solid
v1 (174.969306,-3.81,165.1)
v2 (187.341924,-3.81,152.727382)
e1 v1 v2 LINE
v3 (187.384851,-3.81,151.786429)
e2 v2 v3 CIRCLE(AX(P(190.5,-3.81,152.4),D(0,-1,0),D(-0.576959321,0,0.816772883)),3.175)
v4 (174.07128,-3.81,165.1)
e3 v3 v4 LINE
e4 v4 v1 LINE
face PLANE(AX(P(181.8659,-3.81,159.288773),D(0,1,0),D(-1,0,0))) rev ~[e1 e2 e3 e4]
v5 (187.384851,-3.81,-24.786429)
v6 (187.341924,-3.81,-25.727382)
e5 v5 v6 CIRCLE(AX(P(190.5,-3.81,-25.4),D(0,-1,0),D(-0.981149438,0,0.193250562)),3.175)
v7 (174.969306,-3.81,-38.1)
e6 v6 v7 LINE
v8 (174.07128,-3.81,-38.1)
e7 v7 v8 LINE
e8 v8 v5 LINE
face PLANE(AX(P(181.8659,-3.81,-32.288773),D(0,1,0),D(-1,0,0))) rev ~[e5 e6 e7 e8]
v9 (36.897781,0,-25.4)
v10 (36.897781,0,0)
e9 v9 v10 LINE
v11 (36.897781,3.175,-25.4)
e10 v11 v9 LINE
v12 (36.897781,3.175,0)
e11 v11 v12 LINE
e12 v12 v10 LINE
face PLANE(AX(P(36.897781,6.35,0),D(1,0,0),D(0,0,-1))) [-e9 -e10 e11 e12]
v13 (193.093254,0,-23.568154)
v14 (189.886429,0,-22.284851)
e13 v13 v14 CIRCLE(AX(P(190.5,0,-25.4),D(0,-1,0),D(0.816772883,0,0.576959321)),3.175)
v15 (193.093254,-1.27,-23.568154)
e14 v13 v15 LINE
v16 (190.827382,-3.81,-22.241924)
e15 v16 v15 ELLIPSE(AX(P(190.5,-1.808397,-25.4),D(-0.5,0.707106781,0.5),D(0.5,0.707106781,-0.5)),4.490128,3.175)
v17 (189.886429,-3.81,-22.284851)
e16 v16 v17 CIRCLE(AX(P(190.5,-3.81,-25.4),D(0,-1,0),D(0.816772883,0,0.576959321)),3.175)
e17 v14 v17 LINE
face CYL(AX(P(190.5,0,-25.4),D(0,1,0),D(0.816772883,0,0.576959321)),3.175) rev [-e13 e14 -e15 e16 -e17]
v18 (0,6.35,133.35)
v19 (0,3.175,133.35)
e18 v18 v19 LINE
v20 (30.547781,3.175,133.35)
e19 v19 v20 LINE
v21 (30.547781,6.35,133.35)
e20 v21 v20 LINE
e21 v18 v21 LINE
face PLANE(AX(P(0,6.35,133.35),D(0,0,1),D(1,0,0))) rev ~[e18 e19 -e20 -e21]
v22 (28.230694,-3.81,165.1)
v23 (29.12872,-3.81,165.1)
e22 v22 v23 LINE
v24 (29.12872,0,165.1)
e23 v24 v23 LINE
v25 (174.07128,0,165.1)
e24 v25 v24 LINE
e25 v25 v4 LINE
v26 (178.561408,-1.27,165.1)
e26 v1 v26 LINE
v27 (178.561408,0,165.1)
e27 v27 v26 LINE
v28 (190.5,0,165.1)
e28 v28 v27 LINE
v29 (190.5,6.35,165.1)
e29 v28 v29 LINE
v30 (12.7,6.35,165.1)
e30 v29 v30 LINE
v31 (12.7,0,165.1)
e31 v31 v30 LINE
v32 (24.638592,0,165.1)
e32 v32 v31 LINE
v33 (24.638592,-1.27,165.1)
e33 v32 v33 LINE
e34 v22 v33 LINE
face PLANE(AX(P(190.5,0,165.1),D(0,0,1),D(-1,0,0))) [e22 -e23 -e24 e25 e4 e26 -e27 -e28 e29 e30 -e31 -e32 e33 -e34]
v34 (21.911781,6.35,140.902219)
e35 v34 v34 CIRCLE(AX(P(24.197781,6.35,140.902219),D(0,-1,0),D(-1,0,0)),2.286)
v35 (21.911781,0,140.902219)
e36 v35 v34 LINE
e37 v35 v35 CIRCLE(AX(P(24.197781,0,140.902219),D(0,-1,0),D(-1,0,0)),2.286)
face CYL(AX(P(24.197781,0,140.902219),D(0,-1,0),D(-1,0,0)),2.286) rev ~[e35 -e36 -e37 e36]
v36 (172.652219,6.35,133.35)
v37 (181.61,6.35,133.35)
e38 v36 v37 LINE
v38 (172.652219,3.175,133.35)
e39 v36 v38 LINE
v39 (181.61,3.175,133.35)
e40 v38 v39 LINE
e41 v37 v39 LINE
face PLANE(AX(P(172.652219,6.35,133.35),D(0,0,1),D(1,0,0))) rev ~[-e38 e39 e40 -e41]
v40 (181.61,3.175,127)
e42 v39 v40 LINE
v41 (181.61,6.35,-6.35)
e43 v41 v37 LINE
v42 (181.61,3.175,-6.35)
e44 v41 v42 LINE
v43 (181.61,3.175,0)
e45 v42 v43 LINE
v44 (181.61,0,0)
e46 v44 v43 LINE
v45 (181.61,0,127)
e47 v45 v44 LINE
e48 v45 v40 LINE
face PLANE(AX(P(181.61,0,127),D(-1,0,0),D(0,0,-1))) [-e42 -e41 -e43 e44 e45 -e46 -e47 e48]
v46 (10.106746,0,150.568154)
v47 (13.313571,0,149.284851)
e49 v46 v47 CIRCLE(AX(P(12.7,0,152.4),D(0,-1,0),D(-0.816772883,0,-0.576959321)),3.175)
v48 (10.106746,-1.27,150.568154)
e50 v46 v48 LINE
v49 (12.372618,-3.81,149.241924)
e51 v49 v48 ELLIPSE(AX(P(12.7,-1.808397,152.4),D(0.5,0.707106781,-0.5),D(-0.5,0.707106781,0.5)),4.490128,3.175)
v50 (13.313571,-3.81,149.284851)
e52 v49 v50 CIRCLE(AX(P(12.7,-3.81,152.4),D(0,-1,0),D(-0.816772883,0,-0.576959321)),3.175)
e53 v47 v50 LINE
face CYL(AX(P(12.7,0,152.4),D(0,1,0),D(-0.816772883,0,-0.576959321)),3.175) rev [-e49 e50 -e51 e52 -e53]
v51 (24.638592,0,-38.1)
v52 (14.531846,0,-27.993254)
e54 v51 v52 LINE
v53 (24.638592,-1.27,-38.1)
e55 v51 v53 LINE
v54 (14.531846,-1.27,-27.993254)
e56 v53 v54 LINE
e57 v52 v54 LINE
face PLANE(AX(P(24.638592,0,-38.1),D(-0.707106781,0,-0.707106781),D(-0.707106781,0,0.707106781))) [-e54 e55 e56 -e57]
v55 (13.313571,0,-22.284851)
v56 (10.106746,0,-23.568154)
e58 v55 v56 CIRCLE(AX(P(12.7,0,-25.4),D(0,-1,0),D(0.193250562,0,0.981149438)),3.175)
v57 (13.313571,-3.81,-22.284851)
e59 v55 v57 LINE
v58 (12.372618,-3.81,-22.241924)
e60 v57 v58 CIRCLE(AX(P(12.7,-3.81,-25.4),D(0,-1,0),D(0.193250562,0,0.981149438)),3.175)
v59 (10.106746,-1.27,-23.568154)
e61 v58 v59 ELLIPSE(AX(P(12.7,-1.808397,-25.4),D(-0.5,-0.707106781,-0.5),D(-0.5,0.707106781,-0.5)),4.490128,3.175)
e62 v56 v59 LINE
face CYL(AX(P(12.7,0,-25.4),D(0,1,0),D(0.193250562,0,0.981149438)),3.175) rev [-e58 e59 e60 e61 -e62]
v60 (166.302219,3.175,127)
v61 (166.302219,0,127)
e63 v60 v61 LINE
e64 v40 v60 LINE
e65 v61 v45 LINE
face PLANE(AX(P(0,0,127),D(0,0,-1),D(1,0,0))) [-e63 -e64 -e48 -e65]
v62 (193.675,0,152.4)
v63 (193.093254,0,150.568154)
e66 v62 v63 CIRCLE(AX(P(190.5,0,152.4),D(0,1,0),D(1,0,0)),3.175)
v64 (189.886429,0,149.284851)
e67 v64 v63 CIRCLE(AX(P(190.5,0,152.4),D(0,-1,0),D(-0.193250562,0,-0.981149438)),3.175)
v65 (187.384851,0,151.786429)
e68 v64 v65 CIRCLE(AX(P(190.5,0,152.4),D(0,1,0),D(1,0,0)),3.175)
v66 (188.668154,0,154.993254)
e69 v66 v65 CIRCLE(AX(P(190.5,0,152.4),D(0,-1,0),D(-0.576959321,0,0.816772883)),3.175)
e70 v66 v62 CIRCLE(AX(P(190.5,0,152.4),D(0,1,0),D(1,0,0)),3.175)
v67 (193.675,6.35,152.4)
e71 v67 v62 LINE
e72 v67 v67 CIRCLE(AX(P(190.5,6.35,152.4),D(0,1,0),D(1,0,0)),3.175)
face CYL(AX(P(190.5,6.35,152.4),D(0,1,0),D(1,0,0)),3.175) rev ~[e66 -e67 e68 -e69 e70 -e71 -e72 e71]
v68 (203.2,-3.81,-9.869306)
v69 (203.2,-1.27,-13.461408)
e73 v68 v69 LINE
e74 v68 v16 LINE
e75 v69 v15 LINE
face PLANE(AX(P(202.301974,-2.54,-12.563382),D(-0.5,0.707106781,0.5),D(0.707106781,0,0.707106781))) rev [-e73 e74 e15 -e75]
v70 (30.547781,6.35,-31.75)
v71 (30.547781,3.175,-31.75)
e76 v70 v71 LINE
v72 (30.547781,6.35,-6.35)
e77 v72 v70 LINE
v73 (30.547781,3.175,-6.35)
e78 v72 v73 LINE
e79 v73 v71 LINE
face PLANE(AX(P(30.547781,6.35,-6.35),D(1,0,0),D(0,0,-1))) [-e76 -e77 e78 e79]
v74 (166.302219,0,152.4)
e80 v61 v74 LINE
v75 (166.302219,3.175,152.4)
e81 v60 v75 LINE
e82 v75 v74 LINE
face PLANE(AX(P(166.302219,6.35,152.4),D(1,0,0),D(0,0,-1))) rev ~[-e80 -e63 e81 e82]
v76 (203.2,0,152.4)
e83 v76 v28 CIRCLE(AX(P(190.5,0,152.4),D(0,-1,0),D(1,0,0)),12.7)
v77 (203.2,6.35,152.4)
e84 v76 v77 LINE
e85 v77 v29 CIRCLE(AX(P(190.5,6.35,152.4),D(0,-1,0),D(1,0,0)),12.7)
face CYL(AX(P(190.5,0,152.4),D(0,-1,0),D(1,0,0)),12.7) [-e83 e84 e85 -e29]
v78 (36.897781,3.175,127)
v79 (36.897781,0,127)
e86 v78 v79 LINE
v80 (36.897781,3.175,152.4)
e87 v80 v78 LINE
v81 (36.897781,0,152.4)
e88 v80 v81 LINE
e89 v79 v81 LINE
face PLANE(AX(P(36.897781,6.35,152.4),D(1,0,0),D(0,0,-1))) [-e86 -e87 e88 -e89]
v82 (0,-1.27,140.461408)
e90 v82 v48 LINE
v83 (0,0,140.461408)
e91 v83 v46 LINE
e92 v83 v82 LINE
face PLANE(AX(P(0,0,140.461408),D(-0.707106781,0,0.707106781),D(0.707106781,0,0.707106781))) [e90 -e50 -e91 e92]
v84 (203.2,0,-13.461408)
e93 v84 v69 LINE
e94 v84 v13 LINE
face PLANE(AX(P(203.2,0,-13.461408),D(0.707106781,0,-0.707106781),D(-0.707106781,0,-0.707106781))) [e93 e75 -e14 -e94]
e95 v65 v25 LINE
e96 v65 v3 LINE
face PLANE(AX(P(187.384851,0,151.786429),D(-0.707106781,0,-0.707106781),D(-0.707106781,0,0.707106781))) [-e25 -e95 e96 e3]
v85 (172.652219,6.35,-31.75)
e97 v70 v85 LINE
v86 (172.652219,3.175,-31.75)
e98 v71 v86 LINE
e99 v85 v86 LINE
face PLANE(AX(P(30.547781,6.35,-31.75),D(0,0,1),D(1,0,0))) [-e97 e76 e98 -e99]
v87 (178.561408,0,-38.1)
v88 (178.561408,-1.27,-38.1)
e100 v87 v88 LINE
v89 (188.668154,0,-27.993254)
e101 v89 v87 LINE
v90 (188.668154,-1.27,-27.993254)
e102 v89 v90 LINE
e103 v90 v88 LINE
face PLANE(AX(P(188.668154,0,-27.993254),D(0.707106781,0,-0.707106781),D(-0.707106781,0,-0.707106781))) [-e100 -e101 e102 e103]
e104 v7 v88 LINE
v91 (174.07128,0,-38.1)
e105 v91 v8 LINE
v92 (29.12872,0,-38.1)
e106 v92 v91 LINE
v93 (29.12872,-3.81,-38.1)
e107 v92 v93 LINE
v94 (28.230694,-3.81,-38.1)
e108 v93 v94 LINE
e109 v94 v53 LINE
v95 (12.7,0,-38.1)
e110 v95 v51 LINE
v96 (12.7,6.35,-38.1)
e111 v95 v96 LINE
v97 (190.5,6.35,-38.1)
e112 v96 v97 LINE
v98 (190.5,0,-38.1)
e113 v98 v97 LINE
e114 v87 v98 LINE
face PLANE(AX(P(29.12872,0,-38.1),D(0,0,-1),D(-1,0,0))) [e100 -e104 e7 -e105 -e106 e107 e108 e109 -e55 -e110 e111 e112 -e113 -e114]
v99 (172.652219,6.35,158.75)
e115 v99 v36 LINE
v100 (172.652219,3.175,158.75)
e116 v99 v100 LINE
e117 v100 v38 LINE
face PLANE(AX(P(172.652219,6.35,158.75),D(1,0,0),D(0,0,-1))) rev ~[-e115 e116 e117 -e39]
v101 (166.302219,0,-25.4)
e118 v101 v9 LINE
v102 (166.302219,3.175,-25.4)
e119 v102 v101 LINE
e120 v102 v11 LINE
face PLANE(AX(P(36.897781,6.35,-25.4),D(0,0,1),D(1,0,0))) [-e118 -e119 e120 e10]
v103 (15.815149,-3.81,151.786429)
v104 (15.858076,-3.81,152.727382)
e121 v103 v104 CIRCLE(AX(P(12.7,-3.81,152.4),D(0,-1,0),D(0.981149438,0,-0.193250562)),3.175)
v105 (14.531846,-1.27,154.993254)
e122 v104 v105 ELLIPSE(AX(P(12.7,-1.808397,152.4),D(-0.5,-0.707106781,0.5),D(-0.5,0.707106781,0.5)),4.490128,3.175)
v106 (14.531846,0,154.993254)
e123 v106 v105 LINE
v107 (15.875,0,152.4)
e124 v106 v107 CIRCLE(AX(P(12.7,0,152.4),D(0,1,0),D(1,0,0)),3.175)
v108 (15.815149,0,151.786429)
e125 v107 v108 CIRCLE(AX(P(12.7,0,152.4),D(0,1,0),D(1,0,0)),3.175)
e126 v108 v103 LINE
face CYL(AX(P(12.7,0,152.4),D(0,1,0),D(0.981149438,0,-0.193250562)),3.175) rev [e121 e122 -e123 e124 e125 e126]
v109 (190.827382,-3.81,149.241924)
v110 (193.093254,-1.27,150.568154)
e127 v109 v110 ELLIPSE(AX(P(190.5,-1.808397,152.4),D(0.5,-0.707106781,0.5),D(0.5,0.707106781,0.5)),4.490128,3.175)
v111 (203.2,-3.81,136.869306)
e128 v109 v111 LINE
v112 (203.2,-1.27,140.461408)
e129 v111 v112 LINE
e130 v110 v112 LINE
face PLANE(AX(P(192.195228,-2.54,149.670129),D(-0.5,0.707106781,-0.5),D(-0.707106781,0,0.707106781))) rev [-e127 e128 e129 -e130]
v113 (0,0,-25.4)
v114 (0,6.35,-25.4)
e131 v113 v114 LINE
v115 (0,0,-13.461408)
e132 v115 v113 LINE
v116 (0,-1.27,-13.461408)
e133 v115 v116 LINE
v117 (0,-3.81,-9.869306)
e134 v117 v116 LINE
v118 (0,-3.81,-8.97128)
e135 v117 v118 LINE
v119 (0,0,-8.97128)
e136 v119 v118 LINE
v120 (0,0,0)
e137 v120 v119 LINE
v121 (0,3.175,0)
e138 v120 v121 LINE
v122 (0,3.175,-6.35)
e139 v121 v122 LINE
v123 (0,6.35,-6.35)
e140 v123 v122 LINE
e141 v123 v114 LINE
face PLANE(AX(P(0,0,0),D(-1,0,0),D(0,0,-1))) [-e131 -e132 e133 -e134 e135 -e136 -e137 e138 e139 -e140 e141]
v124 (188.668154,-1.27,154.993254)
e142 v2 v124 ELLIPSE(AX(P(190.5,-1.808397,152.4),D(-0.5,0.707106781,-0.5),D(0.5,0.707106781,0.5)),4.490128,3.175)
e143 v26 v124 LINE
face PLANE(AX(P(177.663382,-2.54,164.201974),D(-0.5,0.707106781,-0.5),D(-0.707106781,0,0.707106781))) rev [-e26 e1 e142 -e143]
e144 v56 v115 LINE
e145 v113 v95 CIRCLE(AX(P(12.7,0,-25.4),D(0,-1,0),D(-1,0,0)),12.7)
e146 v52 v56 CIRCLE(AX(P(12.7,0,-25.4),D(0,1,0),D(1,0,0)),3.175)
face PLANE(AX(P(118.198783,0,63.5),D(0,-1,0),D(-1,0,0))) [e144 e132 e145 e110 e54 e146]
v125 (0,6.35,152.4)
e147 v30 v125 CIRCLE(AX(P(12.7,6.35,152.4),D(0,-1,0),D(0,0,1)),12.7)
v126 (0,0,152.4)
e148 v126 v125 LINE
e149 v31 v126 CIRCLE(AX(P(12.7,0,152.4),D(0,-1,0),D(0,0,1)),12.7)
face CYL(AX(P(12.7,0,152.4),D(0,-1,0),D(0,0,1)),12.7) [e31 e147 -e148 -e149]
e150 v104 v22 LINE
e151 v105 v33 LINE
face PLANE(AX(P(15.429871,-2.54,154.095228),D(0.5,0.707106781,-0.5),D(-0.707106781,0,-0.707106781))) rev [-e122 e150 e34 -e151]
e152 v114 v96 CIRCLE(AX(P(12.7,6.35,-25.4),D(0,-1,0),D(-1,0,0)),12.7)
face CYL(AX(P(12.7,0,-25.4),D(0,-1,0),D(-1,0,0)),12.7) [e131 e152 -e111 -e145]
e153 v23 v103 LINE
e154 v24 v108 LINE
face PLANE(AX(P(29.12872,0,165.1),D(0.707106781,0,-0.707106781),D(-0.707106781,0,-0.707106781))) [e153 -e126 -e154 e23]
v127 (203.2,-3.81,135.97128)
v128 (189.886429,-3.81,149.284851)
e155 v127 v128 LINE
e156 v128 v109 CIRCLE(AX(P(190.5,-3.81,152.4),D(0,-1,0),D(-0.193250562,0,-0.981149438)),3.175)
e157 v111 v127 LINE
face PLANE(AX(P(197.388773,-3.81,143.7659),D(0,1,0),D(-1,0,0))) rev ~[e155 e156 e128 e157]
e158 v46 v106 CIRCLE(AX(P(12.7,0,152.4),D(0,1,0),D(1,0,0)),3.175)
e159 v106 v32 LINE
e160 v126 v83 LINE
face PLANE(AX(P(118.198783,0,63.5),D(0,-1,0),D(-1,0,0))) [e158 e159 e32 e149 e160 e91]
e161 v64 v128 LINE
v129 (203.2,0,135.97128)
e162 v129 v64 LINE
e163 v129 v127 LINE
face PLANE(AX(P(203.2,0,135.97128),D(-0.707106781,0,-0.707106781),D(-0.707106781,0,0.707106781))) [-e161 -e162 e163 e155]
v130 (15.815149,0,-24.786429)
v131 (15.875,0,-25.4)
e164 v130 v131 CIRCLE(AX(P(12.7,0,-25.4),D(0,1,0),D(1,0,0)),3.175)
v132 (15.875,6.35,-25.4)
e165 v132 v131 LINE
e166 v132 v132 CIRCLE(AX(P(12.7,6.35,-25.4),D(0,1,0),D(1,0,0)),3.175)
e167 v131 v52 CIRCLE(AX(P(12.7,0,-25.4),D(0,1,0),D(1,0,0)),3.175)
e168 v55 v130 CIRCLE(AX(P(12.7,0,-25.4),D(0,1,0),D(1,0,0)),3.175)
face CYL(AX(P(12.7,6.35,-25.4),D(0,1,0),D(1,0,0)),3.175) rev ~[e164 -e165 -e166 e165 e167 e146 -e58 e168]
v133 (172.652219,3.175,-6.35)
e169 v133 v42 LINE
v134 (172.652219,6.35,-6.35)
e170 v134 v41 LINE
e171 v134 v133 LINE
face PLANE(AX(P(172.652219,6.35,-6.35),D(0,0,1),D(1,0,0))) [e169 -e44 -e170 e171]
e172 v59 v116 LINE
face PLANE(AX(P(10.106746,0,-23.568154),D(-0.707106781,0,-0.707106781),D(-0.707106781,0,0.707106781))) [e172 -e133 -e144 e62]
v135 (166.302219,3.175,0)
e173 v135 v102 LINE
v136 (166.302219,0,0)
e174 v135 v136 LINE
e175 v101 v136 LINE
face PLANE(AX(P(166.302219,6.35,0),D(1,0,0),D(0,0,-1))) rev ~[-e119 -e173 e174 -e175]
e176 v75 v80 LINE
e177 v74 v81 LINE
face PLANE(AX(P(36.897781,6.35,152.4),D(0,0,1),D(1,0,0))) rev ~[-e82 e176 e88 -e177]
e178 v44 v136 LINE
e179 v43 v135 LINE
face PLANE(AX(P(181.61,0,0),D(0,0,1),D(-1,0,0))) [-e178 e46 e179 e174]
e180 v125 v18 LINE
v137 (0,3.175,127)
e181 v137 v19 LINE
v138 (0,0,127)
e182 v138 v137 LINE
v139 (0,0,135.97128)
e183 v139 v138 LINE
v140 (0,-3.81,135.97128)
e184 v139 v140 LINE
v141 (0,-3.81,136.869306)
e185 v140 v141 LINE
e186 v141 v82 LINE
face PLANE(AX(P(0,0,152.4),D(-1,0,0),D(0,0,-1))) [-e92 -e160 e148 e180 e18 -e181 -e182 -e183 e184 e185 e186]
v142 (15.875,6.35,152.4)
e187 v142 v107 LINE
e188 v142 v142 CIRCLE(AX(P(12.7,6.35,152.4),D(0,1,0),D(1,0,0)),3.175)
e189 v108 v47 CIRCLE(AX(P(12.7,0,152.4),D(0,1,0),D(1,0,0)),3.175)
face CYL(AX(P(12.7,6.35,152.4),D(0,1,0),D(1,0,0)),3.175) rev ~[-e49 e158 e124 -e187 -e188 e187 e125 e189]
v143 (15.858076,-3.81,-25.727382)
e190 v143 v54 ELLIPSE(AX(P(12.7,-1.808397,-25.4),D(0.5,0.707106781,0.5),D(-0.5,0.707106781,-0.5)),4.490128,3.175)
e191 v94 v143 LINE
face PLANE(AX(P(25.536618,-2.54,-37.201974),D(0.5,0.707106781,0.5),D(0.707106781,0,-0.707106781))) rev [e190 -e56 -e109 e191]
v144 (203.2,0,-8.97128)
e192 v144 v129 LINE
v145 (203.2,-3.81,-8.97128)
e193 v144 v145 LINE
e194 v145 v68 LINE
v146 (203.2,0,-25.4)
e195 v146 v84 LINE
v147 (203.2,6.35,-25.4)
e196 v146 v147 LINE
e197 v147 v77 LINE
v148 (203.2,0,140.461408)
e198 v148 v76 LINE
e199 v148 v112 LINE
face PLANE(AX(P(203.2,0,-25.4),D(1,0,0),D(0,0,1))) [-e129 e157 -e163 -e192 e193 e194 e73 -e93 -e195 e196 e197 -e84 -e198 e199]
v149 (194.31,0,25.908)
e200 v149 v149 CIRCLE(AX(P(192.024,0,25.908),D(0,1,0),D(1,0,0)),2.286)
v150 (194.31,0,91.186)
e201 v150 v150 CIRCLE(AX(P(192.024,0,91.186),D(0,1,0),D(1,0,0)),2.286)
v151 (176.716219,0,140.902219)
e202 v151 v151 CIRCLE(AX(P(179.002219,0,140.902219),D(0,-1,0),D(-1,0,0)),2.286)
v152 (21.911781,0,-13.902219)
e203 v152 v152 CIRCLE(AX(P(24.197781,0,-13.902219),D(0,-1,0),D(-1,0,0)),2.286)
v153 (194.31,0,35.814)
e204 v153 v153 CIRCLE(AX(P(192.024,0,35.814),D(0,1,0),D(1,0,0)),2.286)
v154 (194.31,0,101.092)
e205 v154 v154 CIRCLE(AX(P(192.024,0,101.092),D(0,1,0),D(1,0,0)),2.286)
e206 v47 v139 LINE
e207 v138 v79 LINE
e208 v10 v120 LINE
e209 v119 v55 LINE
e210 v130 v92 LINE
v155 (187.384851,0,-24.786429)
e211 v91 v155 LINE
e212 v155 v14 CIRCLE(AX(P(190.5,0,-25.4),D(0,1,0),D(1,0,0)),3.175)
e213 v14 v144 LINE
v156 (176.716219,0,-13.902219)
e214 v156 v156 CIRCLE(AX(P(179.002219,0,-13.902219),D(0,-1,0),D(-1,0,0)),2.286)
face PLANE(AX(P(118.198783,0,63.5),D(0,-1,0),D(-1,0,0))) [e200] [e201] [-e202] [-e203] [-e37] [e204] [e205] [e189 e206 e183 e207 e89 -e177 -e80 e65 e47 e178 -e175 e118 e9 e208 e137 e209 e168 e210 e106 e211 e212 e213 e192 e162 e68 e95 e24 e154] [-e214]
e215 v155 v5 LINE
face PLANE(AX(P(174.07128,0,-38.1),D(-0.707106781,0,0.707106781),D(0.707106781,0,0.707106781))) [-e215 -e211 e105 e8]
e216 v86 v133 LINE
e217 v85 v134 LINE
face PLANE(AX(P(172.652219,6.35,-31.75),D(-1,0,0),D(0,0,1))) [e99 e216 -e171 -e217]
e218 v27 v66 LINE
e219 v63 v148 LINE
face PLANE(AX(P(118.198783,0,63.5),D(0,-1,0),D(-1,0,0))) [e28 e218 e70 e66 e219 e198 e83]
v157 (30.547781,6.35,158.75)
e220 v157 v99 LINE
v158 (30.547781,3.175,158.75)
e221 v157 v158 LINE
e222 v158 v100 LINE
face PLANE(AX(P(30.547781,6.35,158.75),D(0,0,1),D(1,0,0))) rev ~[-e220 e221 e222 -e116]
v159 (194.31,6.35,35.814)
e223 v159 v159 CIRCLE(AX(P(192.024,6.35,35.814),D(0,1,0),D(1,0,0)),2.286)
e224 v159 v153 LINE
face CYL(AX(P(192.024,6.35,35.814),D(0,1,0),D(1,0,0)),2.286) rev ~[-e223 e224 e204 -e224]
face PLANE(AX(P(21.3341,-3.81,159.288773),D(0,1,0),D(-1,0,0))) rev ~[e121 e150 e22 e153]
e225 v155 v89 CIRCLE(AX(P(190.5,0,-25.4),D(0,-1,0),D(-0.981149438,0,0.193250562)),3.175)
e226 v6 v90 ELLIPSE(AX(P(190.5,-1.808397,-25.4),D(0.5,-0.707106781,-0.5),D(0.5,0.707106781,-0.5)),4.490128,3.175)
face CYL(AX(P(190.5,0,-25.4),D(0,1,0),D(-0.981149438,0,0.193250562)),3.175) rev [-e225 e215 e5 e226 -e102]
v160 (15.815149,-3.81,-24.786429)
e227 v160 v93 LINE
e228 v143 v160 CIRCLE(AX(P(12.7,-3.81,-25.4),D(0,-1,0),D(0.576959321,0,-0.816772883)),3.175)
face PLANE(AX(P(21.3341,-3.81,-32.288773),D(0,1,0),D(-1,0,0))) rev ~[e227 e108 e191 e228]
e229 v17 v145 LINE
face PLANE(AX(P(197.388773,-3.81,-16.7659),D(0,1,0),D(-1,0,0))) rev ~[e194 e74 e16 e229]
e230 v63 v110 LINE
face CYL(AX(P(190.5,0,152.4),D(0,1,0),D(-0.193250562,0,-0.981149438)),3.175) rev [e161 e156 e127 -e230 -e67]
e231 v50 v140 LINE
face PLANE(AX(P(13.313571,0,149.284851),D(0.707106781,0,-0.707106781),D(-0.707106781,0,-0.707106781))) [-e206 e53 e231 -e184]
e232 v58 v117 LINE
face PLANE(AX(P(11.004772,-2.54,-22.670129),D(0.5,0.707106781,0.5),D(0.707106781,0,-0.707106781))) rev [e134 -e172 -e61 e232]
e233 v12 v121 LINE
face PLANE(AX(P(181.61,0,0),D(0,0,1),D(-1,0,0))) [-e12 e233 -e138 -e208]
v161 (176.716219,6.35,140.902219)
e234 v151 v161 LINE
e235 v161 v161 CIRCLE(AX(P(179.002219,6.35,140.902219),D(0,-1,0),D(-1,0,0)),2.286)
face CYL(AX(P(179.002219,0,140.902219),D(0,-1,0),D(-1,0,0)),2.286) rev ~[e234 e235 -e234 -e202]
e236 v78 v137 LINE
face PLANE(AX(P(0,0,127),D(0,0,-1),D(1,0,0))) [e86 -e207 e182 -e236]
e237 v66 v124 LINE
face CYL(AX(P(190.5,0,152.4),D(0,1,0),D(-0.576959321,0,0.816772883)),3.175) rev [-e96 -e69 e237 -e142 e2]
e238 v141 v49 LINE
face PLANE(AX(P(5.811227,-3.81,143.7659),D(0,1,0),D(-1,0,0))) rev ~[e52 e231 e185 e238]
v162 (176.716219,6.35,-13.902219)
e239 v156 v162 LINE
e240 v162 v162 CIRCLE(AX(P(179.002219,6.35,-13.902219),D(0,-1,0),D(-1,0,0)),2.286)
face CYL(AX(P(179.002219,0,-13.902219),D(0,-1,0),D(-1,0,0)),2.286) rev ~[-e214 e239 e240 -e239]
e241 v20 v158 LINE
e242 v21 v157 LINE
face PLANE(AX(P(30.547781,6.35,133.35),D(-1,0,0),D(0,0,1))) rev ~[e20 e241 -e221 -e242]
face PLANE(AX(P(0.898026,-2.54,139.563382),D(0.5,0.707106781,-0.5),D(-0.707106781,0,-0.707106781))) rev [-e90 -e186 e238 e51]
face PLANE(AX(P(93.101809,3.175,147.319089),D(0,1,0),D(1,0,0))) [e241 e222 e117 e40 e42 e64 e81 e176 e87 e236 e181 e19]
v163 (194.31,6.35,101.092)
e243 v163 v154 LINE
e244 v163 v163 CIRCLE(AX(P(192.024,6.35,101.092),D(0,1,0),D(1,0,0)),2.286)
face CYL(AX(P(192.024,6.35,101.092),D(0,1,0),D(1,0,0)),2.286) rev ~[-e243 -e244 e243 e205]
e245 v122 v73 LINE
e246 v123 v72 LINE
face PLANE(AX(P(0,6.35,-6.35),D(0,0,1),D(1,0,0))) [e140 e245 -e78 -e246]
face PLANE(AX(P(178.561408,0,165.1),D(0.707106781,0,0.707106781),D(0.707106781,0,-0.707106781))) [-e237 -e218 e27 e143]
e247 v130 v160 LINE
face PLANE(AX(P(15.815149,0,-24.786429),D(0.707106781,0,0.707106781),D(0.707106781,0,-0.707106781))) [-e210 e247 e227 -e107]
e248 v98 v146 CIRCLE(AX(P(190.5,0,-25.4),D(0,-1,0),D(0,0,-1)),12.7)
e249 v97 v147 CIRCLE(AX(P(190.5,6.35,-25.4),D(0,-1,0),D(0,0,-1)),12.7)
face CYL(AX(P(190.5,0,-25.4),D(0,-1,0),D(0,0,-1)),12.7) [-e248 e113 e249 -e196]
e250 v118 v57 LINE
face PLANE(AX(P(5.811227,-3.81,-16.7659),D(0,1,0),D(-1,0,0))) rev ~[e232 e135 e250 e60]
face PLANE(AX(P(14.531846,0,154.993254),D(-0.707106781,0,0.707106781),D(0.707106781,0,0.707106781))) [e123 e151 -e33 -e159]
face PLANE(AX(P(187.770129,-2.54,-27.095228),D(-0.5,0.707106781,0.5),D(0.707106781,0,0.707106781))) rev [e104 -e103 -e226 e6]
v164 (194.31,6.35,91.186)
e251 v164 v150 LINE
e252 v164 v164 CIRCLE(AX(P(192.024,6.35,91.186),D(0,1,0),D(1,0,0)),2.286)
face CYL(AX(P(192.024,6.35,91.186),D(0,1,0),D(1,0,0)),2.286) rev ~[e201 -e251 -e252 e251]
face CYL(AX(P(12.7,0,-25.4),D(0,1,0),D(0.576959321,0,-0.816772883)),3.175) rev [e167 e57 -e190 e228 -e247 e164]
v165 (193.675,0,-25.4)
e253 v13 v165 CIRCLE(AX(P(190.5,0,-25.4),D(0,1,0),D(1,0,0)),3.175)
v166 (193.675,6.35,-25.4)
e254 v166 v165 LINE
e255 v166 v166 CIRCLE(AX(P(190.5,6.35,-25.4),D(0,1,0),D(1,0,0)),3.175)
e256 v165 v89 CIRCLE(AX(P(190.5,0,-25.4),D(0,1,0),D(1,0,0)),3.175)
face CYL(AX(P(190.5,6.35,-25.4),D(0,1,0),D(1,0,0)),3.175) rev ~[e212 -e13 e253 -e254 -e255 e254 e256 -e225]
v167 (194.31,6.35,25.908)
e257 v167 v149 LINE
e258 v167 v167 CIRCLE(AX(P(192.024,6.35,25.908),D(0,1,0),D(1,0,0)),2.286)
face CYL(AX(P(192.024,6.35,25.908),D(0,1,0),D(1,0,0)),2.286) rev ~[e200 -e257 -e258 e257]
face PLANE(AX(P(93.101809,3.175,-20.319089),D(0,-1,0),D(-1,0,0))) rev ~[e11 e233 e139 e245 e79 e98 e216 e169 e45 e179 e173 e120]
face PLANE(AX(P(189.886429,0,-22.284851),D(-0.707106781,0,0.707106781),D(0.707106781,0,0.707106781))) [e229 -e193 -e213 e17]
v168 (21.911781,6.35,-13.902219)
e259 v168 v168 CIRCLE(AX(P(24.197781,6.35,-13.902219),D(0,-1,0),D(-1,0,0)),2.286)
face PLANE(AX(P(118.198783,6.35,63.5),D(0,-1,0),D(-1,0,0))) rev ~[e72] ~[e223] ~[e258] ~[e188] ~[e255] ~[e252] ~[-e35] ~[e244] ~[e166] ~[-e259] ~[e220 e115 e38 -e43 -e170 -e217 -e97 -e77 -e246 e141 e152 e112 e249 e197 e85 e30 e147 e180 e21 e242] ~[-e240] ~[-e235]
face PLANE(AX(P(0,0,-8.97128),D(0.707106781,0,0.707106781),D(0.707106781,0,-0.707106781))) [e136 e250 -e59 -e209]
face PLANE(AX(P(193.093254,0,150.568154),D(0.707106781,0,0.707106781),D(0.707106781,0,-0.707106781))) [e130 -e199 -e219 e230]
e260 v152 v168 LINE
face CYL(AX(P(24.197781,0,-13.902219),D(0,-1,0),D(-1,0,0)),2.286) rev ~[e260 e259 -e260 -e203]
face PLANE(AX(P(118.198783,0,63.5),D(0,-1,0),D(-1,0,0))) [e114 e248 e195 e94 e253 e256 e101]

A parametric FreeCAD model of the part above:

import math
import FreeCAD as App
import Part
import Sketcher
Q = App.Units.Quantity


def edges_at(feature, points):
    """Names of the edges that pass closest to the given points."""
    edges = feature.Shape.Edges
    near = lambda p: min(range(len(edges)), key=lambda i: edges[i].distToShape(Part.Vertex(*p))[0])
    return sorted({f"Edge{near(p) + 1}" for p in points})


def add_polygon(sketch, points):
    """Adds a closed chain of lines whose ends are joined by coincident constraints."""
    first, n = sketch.GeometryCount, len(points)
    for a, b in zip(points, points[1:] + points[:1]):
        sketch.addGeometry(Part.LineSegment(App.Vector(*a, 0), App.Vector(*b, 0)), False)
    for i in range(n):
        sketch.addConstraint(Sketcher.Constraint("Coincident", first + i, 2, first + (i + 1) % n, 1))

doc = App.newDocument("Part")
body = doc.addObject("PartDesign::Body", "Body")

# Sketch on XZ plane
sketch1 = doc.addObject("Sketcher::SketchObject", "Sketch")
body.addObject(sketch1)
sketch1.AttachmentSupport = (doc.XZ_Plane, [""])
sketch1.MapMode = "FlatFace"
sketch1.addGeometry(Part.LineSegment(App.Vector(0, -25, 0), App.Vector(0, 0, 0)), False)
sketch1.addGeometry(Part.LineSegment(App.Vector(0, 0, 0), App.Vector(182, 0, 0)), False)
sketch1.addGeometry(Part.LineSegment(App.Vector(182, 0, 0), App.Vector(182, 127, 0)), False)
sketch1.addGeometry(Part.LineSegment(App.Vector(182, 127, 0), App.Vector(0, 127, 0)), False)
sketch1.addGeometry(Part.LineSegment(App.Vector(0, 127, 0), App.Vector(0, 152, 0)), False)
sketch1.addGeometry(Part.ArcOfCircle(Part.Circle(App.Vector(13, 152, 0), App.Vector(0, 0, 1), 13), math.radians(90), math.radians(180)), False)
sketch1.addGeometry(Part.LineSegment(App.Vector(13, 165, 0), App.Vector(190, 165, 0)), False)
sketch1.addGeometry(Part.ArcOfCircle(Part.Circle(App.Vector(190, 152, 0), App.Vector(0, 0, 1), 13), math.radians(0), math.radians(90)), False)
sketch1.addGeometry(Part.LineSegment(App.Vector(203, 152, 0), App.Vector(203, -25, 0)), False)
sketch1.addGeometry(Part.ArcOfCircle(Part.Circle(App.Vector(190, -25, 0), App.Vector(0, 0, 1), 13), math.radians(-90), math.radians(0)), False)
sketch1.addGeometry(Part.LineSegment(App.Vector(190, -38, 0), App.Vector(13, -38, 0)), False)
sketch1.addGeometry(Part.ArcOfCircle(Part.Circle(App.Vector(13, -25, 0), App.Vector(0, 0, 1), 13), math.radians(180), math.radians(270)), False)
sketch1.addConstraint(Sketcher.Constraint("Coincident", 0, 2, 1, 1))
sketch1.addConstraint(Sketcher.Constraint("Coincident", 1, 2, 2, 1))
sketch1.addConstraint(Sketcher.Constraint("Coincident", 2, 2, 3, 1))
sketch1.addConstraint(Sketcher.Constraint("Coincident", 3, 2, 4, 1))
sketch1.addConstraint(Sketcher.Constraint("Tangent", 4, 2, 5, 2))
sketch1.addConstraint(Sketcher.Constraint("Tangent", 5, 1, 6, 1))
sketch1.addConstraint(Sketcher.Constraint("Tangent", 6, 2, 7, 2))
sketch1.addConstraint(Sketcher.Constraint("Tangent", 7, 1, 8, 1))
sketch1.addConstraint(Sketcher.Constraint("Tangent", 8, 2, 9, 2))
sketch1.addConstraint(Sketcher.Constraint("Tangent", 9, 1, 10, 1))
sketch1.addConstraint(Sketcher.Constraint("Tangent", 10, 2, 11, 2))
sketch1.addConstraint(Sketcher.Constraint("Tangent", 11, 1, 0, 1))
sketch1.addConstraint(Sketcher.Constraint("Vertical", 0))
sketch1.addConstraint(Sketcher.Constraint("Horizontal", 1))
sketch1.addConstraint(Sketcher.Constraint("Vertical", 2))
sketch1.addConstraint(Sketcher.Constraint("Horizontal", 3))
sketch1.addConstraint(Sketcher.Constraint("Vertical", 4))
sketch1.addConstraint(Sketcher.Constraint("Horizontal", 6))
sketch1.addConstraint(Sketcher.Constraint("Vertical", 8))
sketch1.addConstraint(Sketcher.Constraint("Horizontal", 10))
sketch1.addConstraint(Sketcher.Constraint("Coincident", 0, 2, -1, 1))
sketch1.addConstraint(Sketcher.Constraint("Equal", 5, 7))
sketch1.addConstraint(Sketcher.Constraint("Equal", 7, 9))
sketch1.addConstraint(Sketcher.Constraint("Equal", 9, 11))
sketch1.addConstraint(Sketcher.Constraint("PointOnObject", 3, 2, -2))
sketch1.addConstraint(Sketcher.Constraint("Equal", 0, 4))
sketch1.addConstraint(Sketcher.Constraint("Equal", 10, 8))
sketch1.addConstraint(Sketcher.Constraint("Radius", 5, Q("0.5 in")))
sketch1.addConstraint(Sketcher.Constraint("DistanceX", 6, 1, 6, 2, Q("7 in")))
sketch1.addConstraint(Sketcher.Constraint("DistanceY", 0, 1, 0, 2, Q("1 in")))
sketch1.addConstraint(Sketcher.Constraint("DistanceX", 1, 1, 1, 2, Q("7.15 in")))
pad1 = doc.addObject("PartDesign::Pad", "Pad")
body.addObject(pad1)
pad1.Profile = sketch1
pad1.Length = Q("0.25 in")
pad1.Reversed = True

# Sketch on XZ plane
sketch2 = doc.addObject("Sketcher::SketchObject", "Sketch001")
body.addObject(sketch2)
sketch2.AttachmentSupport = (doc.XZ_Plane, [""])
sketch2.MapMode = "FlatFace"
sketch2.AttachmentOffset = App.Placement(App.Vector(0, 0, -0.25 * 25.4), App.Rotation())
sketch2.addGeometry(Part.Circle(App.Vector(12.7, -25.4, 0), App.Vector(0, 0, 1), 3.2), False)
sketch2.addGeometry(Part.Circle(App.Vector(190.5, -25.4, 0), App.Vector(0, 0, 1), 3.2), False)
sketch2.addGeometry(Part.Circle(App.Vector(190.5, 152.4, 0), App.Vector(0, 0, 1), 3.2), False)
sketch2.addGeometry(Part.Circle(App.Vector(12.7, 152.4, 0), App.Vector(0, 0, 1), 3.2), False)
sketch2.addConstraint(Sketcher.Constraint("Equal", 0, 1))
sketch2.addConstraint(Sketcher.Constraint("Equal", 1, 2))
sketch2.addConstraint(Sketcher.Constraint("Equal", 2, 3))
sketch2.addConstraint(Sketcher.Constraint("Horizontal", 0, 3, 1, 3))
sketch2.addConstraint(Sketcher.Constraint("Horizontal", 2, 3, 3, 3))
sketch2.addConstraint(Sketcher.Constraint("Vertical", 1, 3, 2, 3))
sketch2.addConstraint(Sketcher.Constraint("Vertical", 0, 3, 3, 3))
sketch2.addConstraint(Sketcher.Constraint("Diameter", 0, Q("0.25 in")))
sketch2.addConstraint(Sketcher.Constraint("DistanceY", 0, 3, -1, 1, Q("1 in")))
sketch2.addConstraint(Sketcher.Constraint("DistanceY", -1, 1, 2, 3, Q("6 in")))
sketch2.addConstraint(Sketcher.Constraint("DistanceX", 0, 3, 1, 3, Q("7 in")))
sketch2.addConstraint(Sketcher.Constraint("DistanceX", -1, 1, 0, 3, Q("0.5 in")))
pocket1 = doc.addObject("PartDesign::Pocket", "Pocket")
body.addObject(pocket1)
pocket1.Profile = sketch2
pocket1.Type = "ThroughAll"
pocket1.Reversed = True

# Sketch on XZ plane
sketch3 = doc.addObject("Sketcher::SketchObject", "Sketch002")
body.addObject(sketch3)
sketch3.AttachmentSupport = (doc.XZ_Plane, [""])
sketch3.MapMode = "FlatFace"
sketch3.AttachmentOffset = App.Placement(App.Vector(0, 0, -0.25 * 25.4), App.Rotation())
sketch3.addGeometry(Part.Circle(App.Vector(192, 101.1, 0), App.Vector(0, 0, 1), 2.3), False)
sketch3.addGeometry(Part.Circle(App.Vector(192, 91.2, 0), App.Vector(0, 0, 1), 2.3), False)
sketch3.addGeometry(Part.Circle(App.Vector(192, 35.8, 0), App.Vector(0, 0, 1), 2.3), False)
sketch3.addGeometry(Part.Circle(App.Vector(192, 25.9, 0), App.Vector(0, 0, 1), 2.3), False)
sketch3.addConstraint(Sketcher.Constraint("Equal", 0, 1))
sketch3.addConstraint(Sketcher.Constraint("Equal", 1, 2))
sketch3.addConstraint(Sketcher.Constraint("Equal", 2, 3))
sketch3.addConstraint(Sketcher.Constraint("Vertical", 0, 3, 1, 3))
sketch3.addConstraint(Sketcher.Constraint("Vertical", 1, 3, 2, 3))
sketch3.addConstraint(Sketcher.Constraint("Vertical", 2, 3, 3, 3))
sketch3.addConstraint(Sketcher.Constraint("Diameter", 0, Q("0.18 in")))
sketch3.addConstraint(Sketcher.Constraint("DistanceX", -1, 1, 0, 3, Q("7.56 in")))
sketch3.addConstraint(Sketcher.Constraint("DistanceY", -1, 1, 0, 3, Q("3.98 in")))
sketch3.addConstraint(Sketcher.Constraint("DistanceY", -1, 1, 1, 3, Q("3.59 in")))
sketch3.addConstraint(Sketcher.Constraint("DistanceY", -1, 1, 2, 3, Q("1.41 in")))
sketch3.addConstraint(Sketcher.Constraint("DistanceY", -1, 1, 3, 3, Q("1.02 in")))
pocket2 = doc.addObject("PartDesign::Pocket", "Pocket001")
body.addObject(pocket2)
pocket2.Profile = sketch3
pocket2.Length = Q("0.5 in")
pocket2.Reversed = True

# Sketch on XZ plane
sketch4 = doc.addObject("Sketcher::SketchObject", "Sketch003")
body.addObject(sketch4)
sketch4.AttachmentSupport = (doc.XZ_Plane, [""])
sketch4.MapMode = "FlatFace"
sketch4.addGeometry(Part.Circle(App.Vector(24.2, -13.9, 0), App.Vector(0, 0, 1), 2.3), False)
sketch4.addGeometry(Part.Circle(App.Vector(24.2, 140.9, 0), App.Vector(0, 0, 1), 2.3), False)
sketch4.addGeometry(Part.Circle(App.Vector(179, 140.9, 0), App.Vector(0, 0, 1), 2.3), False)
sketch4.addGeometry(Part.Circle(App.Vector(179, -13.9, 0), App.Vector(0, 0, 1), 2.3), False)
sketch4.addConstraint(Sketcher.Constraint("Equal", 0, 1))
sketch4.addConstraint(Sketcher.Constraint("Equal", 1, 2))
sketch4.addConstraint(Sketcher.Constraint("Equal", 2, 3))
sketch4.addConstraint(Sketcher.Constraint("Horizontal", 1, 3, 2, 3))
sketch4.addConstraint(Sketcher.Constraint("Horizontal", 0, 3, 3, 3))
sketch4.addConstraint(Sketcher.Constraint("Vertical", 0, 3, 1, 3))
sketch4.addConstraint(Sketcher.Constraint("Vertical", 2, 3, 3, 3))
sketch4.addConstraint(Sketcher.Constraint("Diameter", 0, Q("0.18 in")))
sketch4.addConstraint(Sketcher.Constraint("DistanceX", -1, 1, 0, 3, 24.197781))
sketch4.addConstraint(Sketcher.Constraint("DistanceY", 0, 3, -1, 1, 13.902219))
sketch4.addConstraint(Sketcher.Constraint("DistanceY", -1, 1, 1, 3, 140.902219))
sketch4.addConstraint(Sketcher.Constraint("DistanceX", -1, 1, 2, 3, 179.002219))
pocket3 = doc.addObject("PartDesign::Pocket", "Pocket002")
body.addObject(pocket3)
pocket3.Profile = sketch4
pocket3.Type = "ThroughAll"

# Sketch on XZ plane
sketch5 = doc.addObject("Sketcher::SketchObject", "Sketch004")
body.addObject(sketch5)
sketch5.AttachmentSupport = (doc.XZ_Plane, [""])
sketch5.MapMode = "FlatFace"
sketch5.AttachmentOffset = App.Placement(App.Vector(0, 0, -0.25 * 25.4), App.Rotation())
add_polygon(sketch5, [(37, -25), (37, 0), (166, 0), (166, -25)])  # lines 0-3
add_polygon(sketch5, [(37, 127), (37, 152), (166, 152), (166, 127)])  # lines 4-7
sketch5.addConstraint(Sketcher.Constraint("Vertical", 0))
sketch5.addConstraint(Sketcher.Constraint("Horizontal", 1))
sketch5.addConstraint(Sketcher.Constraint("Vertical", 2))
sketch5.addConstraint(Sketcher.Constraint("Horizontal", 3))
sketch5.addConstraint(Sketcher.Constraint("Vertical", 4))
sketch5.addConstraint(Sketcher.Constraint("Horizontal", 5))
sketch5.addConstraint(Sketcher.Constraint("Vertical", 6))
sketch5.addConstraint(Sketcher.Constraint("Horizontal", 7))
sketch5.addConstraint(Sketcher.Constraint("PointOnObject", 0, 2, -1))
sketch5.addConstraint(Sketcher.Constraint("Vertical", 3, 2, 4, 2))
sketch5.addConstraint(Sketcher.Constraint("Vertical", 2, 2, 5, 2))
sketch5.addConstraint(Sketcher.Constraint("Equal", 2, 4))
sketch5.addConstraint(Sketcher.Constraint("DistanceY", 0, 1, 0, 2, Q("1 in")))
sketch5.addConstraint(Sketcher.Constraint("DistanceY", -1, 1, 4, 2, Q("6 in")))
sketch5.addConstraint(Sketcher.Constraint("DistanceX", 1, 1, 1, 2, 129.404438))
sketch5.addConstraint(Sketcher.Constraint("DistanceX", -1, 1, 0, 2, 36.897781))
pocket4 = doc.addObject("PartDesign::Pocket", "Pocket003")
body.addObject(pocket4)
pocket4.Profile = sketch5
pocket4.Type = "ThroughAll"
pocket4.Reversed = True

# Sketch on XZ plane
sketch6 = doc.addObject("Sketcher::SketchObject", "Sketch005")
body.addObject(sketch6)
sketch6.AttachmentSupport = (doc.XZ_Plane, [""])
sketch6.MapMode = "FlatFace"
sketch6.AttachmentOffset = App.Placement(App.Vector(0, 0, -0.25 * 25.4), App.Rotation())
add_polygon(sketch6, [(31, -6), (0, -6), (0, 0), (37, 0), (37, -25), (166, -25), (166, 0), (182, 0), (182, -6), (173, -6), (173, -32), (31, -32)])  # lines 0-11
add_polygon(sketch6, [(0, 127), (0, 133), (31, 133), (31, 159), (173, 159), (173, 133), (182, 133), (182, 127), (166, 127), (166, 152), (37, 152), (37, 127)])  # lines 12-23
sketch6.addConstraint(Sketcher.Constraint("Horizontal", 0))
sketch6.addConstraint(Sketcher.Constraint("Vertical", 1))
sketch6.addConstraint(Sketcher.Constraint("Horizontal", 2))
sketch6.addConstraint(Sketcher.Constraint("Vertical", 3))
sketch6.addConstraint(Sketcher.Constraint("Horizontal", 4))
sketch6.addConstraint(Sketcher.Constraint("Vertical", 5))
sketch6.addConstraint(Sketcher.Constraint("Horizontal", 6))
sketch6.addConstraint(Sketcher.Constraint("Vertical", 7))
sketch6.addConstraint(Sketcher.Constraint("Horizontal", 8))
sketch6.addConstraint(Sketcher.Constraint("Vertical", 9))
sketch6.addConstraint(Sketcher.Constraint("Horizontal", 10))
sketch6.addConstraint(Sketcher.Constraint("Vertical", 11))
sketch6.addConstraint(Sketcher.Constraint("Vertical", 12))
sketch6.addConstraint(Sketcher.Constraint("Horizontal", 13))
sketch6.addConstraint(Sketcher.Constraint("Vertical", 14))
sketch6.addConstraint(Sketcher.Constraint("Horizontal", 15))
sketch6.addConstraint(Sketcher.Constraint("Vertical", 16))
sketch6.addConstraint(Sketcher.Constraint("Horizontal", 17))
sketch6.addConstraint(Sketcher.Constraint("Vertical", 18))
sketch6.addConstraint(Sketcher.Constraint("Horizontal", 19))
sketch6.addConstraint(Sketcher.Constraint("Vertical", 20))
sketch6.addConstraint(Sketcher.Constraint("Horizontal", 21))
sketch6.addConstraint(Sketcher.Constraint("Vertical", 22))
sketch6.addConstraint(Sketcher.Constraint("Horizontal", 23))
sketch6.addConstraint(Sketcher.Constraint("Coincident", 1, 2, -1, 1))
sketch6.addConstraint(Sketcher.Constraint("PointOnObject", 5, 2, -1))
sketch6.addConstraint(Sketcher.Constraint("PointOnObject", 12, 2, -2))
sketch6.addConstraint(Sketcher.Constraint("Horizontal", 0, 2, 7, 2))
sketch6.addConstraint(Sketcher.Constraint("Horizontal", 13, 2, 16, 2))
sketch6.addConstraint(Sketcher.Constraint("Horizontal", 19, 2, 22, 2))
sketch6.addConstraint(Sketcher.Constraint("Vertical", 11, 2, 13, 2))
sketch6.addConstraint(Sketcher.Constraint("Vertical", 9, 2, 15, 2))
sketch6.addConstraint(Sketcher.Constraint("Vertical", 7, 2, 17, 2))
sketch6.addConstraint(Sketcher.Constraint("Vertical", 5, 2, 19, 2))
sketch6.addConstraint(Sketcher.Constraint("Vertical", 3, 2, 21, 2))
sketch6.addConstraint(Sketcher.Constraint("Equal", 5, 9))
sketch6.addConstraint(Sketcher.Constraint("Equal", 7, 12))
sketch6.addConstraint(Sketcher.Constraint("Equal", 11, 14))
sketch6.addConstraint(Sketcher.Constraint("Equal", 16, 20))
sketch6.addConstraint(Sketcher.Constraint("DistanceY", 3, 2, 3, 1, Q("1 in")))
sketch6.addConstraint(Sketcher.Constraint("DistanceY", -1, 1, 18, 2, Q("5 in")))
sketch6.addConstraint(Sketcher.Constraint("DistanceY", 1, 1, 1, 2, Q("0.25 in")))
sketch6.addConstraint(Sketcher.Constraint("DistanceX", -1, 1, 6, 2, Q("7.15 in")))
sketch6.addConstraint(Sketcher.Constraint("DistanceX", 5, 2, 8, 2, Q("0.25 in")))
sketch6.addConstraint(Sketcher.Constraint("DistanceX", 10, 2, 3, 2, Q("0.25 in")))
sketch6.addConstraint(Sketcher.Constraint("DistanceX", 0, 2, 0, 1, 30.547781))
sketch6.addConstraint(Sketcher.Constraint("DistanceX", 6, 1, 6, 2, 15.307781))
pocket5 = doc.addObject("PartDesign::Pocket", "Pocket004")
body.addObject(pocket5)
pocket5.Profile = sketch6
pocket5.Length = Q("0.125 in")
pocket5.Reversed = True

# Sketch on XZ plane
sketch7 = doc.addObject("Sketcher::SketchObject", "Sketch006")
body.addObject(sketch7)
sketch7.AttachmentSupport = (doc.XZ_Plane, [""])
sketch7.MapMode = "FlatFace"
sketch7.addGeometry(Part.LineSegment(App.Vector(187.4, -24.8, 0), App.Vector(174.1, -38.1, 0)), False)
sketch7.addGeometry(Part.LineSegment(App.Vector(174.1, -38.1, 0), App.Vector(178.6, -38.1, 0)), False)
sketch7.addGeometry(Part.LineSegment(App.Vector(178.6, -38.1, 0), App.Vector(188.7, -28, 0)), False)
sketch7.addGeometry(Part.ArcOfCircle(Part.Circle(App.Vector(190.5, -25.4, 0), App.Vector(0, 0, 1), 3.2), math.radians(169), math.radians(235)), False)
sketch7.addGeometry(Part.LineSegment(App.Vector(203.2, -13.5, 0), App.Vector(203.2, -9, 0)), False)
sketch7.addGeometry(Part.LineSegment(App.Vector(203.2, -9, 0), App.Vector(189.9, -22.3, 0)), False)
sketch7.addGeometry(Part.ArcOfCircle(Part.Circle(App.Vector(190.5, -25.4, 0), App.Vector(0, 0, 1), 3.2), math.radians(35), math.radians(101)), False)
sketch7.addGeometry(Part.LineSegment(App.Vector(193.1, -23.6, 0), App.Vector(203.2, -13.5, 0)), False)
sketch7.addGeometry(Part.LineSegment(App.Vector(0, -13.5, 0), App.Vector(10.1, -23.6, 0)), False)
sketch7.addGeometry(Part.ArcOfCircle(Part.Circle(App.Vector(12.7, -25.4, 0), App.Vector(0, 0, 1), 3.2), math.radians(79), math.radians(145)), False)
sketch7.addGeometry(Part.LineSegment(App.Vector(13.3, -22.3, 0), App.Vector(0, -9, 0)), False)
sketch7.addGeometry(Part.LineSegment(App.Vector(0, -9, 0), App.Vector(0, -13.5, 0)), False)
sketch7.addGeometry(Part.LineSegment(App.Vector(29.1, -38.1, 0), App.Vector(15.8, -24.8, 0)), False)
sketch7.addGeometry(Part.ArcOfCircle(Part.Circle(App.Vector(12.7, -25.4, 0), App.Vector(0, 0, 1), 3.2), math.radians(-55), math.radians(11)), False)
sketch7.addGeometry(Part.LineSegment(App.Vector(14.5, -28, 0), App.Vector(24.6, -38.1, 0)), False)
sketch7.addGeometry(Part.LineSegment(App.Vector(24.6, -38.1, 0), App.Vector(29.1, -38.1, 0)), False)
sketch7.addGeometry(Part.LineSegment(App.Vector(24.6, 165.1, 0), App.Vector(14.5, 155, 0)), False)
sketch7.addGeometry(Part.ArcOfCircle(Part.Circle(App.Vector(12.7, 152.4, 0), App.Vector(0, 0, 1), 3.2), math.radians(-11), math.radians(55)), False)
sketch7.addGeometry(Part.LineSegment(App.Vector(15.8, 151.8, 0), App.Vector(29.1, 165.1, 0)), False)
sketch7.addGeometry(Part.LineSegment(App.Vector(29.1, 165.1, 0), App.Vector(24.6, 165.1, 0)), False)
sketch7.addGeometry(Part.LineSegment(App.Vector(0, 136, 0), App.Vector(13.3, 149.3, 0)), False)
sketch7.addGeometry(Part.ArcOfCircle(Part.Circle(App.Vector(12.7, 152.4, 0), App.Vector(0, 0, 1), 3.2), math.radians(-145), math.radians(-79)), False)
sketch7.addGeometry(Part.LineSegment(App.Vector(10.1, 150.6, 0), App.Vector(0, 140.5, 0)), False)
sketch7.addGeometry(Part.LineSegment(App.Vector(0, 140.5, 0), App.Vector(0, 136, 0)), False)
sketch7.addGeometry(Part.LineSegment(App.Vector(203.2, 140.5, 0), App.Vector(193.1, 150.6, 0)), False)
sketch7.addGeometry(Part.ArcOfCircle(Part.Circle(App.Vector(190.5, 152.4, 0), App.Vector(0, 0, 1), 3.2), math.radians(-101), math.radians(-35)), False)
sketch7.addGeometry(Part.LineSegment(App.Vector(189.9, 149.3, 0), App.Vector(203.2, 136, 0)), False)
sketch7.addGeometry(Part.LineSegment(App.Vector(203.2, 136, 0), App.Vector(203.2, 140.5, 0)), False)
sketch7.addGeometry(Part.LineSegment(App.Vector(174.1, 165.1, 0), App.Vector(187.4, 151.8, 0)), False)
sketch7.addGeometry(Part.ArcOfCircle(Part.Circle(App.Vector(190.5, 152.4, 0), App.Vector(0, 0, 1), 3.2), math.radians(125), math.radians(191)), False)
sketch7.addGeometry(Part.LineSegment(App.Vector(188.7, 155, 0), App.Vector(178.6, 165.1, 0)), False)
sketch7.addGeometry(Part.LineSegment(App.Vector(178.6, 165.1, 0), App.Vector(174.1, 165.1, 0)), False)
sketch7.addConstraint(Sketcher.Constraint("Coincident", 0, 2, 1, 1))
sketch7.addConstraint(Sketcher.Constraint("Coincident", 1, 2, 2, 1))
sketch7.addConstraint(Sketcher.Constraint("Coincident", 2, 2, 3, 2))
sketch7.addConstraint(Sketcher.Constraint("Coincident", 3, 1, 0, 1))
sketch7.addConstraint(Sketcher.Constraint("Coincident", 4, 2, 5, 1))
sketch7.addConstraint(Sketcher.Constraint("Coincident", 5, 2, 6, 2))
sketch7.addConstraint(Sketcher.Constraint("Coincident", 6, 1, 7, 1))
sketch7.addConstraint(Sketcher.Constraint("Coincident", 7, 2, 4, 1))
sketch7.addConstraint(Sketcher.Constraint("Coincident", 8, 2, 9, 2))
sketch7.addConstraint(Sketcher.Constraint("Coincident", 9, 1, 10, 1))
sketch7.addConstraint(Sketcher.Constraint("Coincident", 10, 2, 11, 1))
sketch7.addConstraint(Sketcher.Constraint("Coincident", 11, 2, 8, 1))
sketch7.addConstraint(Sketcher.Constraint("Coincident", 12, 2, 13, 2))
sketch7.addConstraint(Sketcher.Constraint("Coincident", 13, 1, 14, 1))
sketch7.addConstraint(Sketcher.Constraint("Coincident", 14, 2, 15, 1))
sketch7.addConstraint(Sketcher.Constraint("Coincident", 15, 2, 12, 1))
sketch7.addConstraint(Sketcher.Constraint("Coincident", 16, 2, 17, 2))
sketch7.addConstraint(Sketcher.Constraint("Coincident", 17, 1, 18, 1))
sketch7.addConstraint(Sketcher.Constraint("Coincident", 18, 2, 19, 1))
sketch7.addConstraint(Sketcher.Constraint("Coincident", 19, 2, 16, 1))
sketch7.addConstraint(Sketcher.Constraint("Coincident", 20, 2, 21, 2))
sketch7.addConstraint(Sketcher.Constraint("Coincident", 21, 1, 22, 1))
sketch7.addConstraint(Sketcher.Constraint("Coincident", 22, 2, 23, 1))
sketch7.addConstraint(Sketcher.Constraint("Coincident", 23, 2, 20, 1))
sketch7.addConstraint(Sketcher.Constraint("Coincident", 24, 2, 25, 2))
sketch7.addConstraint(Sketcher.Constraint("Coincident", 25, 1, 26, 1))
sketch7.addConstraint(Sketcher.Constraint("Coincident", 26, 2, 27, 1))
sketch7.addConstraint(Sketcher.Constraint("Coincident", 27, 2, 24, 1))
sketch7.addConstraint(Sketcher.Constraint("Coincident", 28, 2, 29, 2))
sketch7.addConstraint(Sketcher.Constraint("Coincident", 29, 1, 30, 1))
sketch7.addConstraint(Sketcher.Constraint("Coincident", 30, 2, 31, 1))
sketch7.addConstraint(Sketcher.Constraint("Coincident", 31, 2, 28, 1))
sketch7.addConstraint(Sketcher.Constraint("Horizontal", 1))
sketch7.addConstraint(Sketcher.Constraint("Vertical", 4))
sketch7.addConstraint(Sketcher.Constraint("Vertical", 11))
sketch7.addConstraint(Sketcher.Constraint("Horizontal", 15))
sketch7.addConstraint(Sketcher.Constraint("Horizontal", 19))
sketch7.addConstraint(Sketcher.Constraint("Vertical", 23))
sketch7.addConstraint(Sketcher.Constraint("Vertical", 27))
sketch7.addConstraint(Sketcher.Constraint("Horizontal", 31))
sketch7.addConstraint(Sketcher.Constraint("Coincident", 6, 3, 3, 3))
sketch7.addConstraint(Sketcher.Constraint("Coincident", 13, 3, 9, 3))
sketch7.addConstraint(Sketcher.Constraint("Coincident", 21, 3, 17, 3))
sketch7.addConstraint(Sketcher.Constraint("Coincident", 29, 3, 25, 3))
sketch7.addConstraint(Sketcher.Constraint("Equal", 3, 6))
sketch7.addConstraint(Sketcher.Constraint("Equal", 6, 9))
sketch7.addConstraint(Sketcher.Constraint("Equal", 9, 13))
sketch7.addConstraint(Sketcher.Constraint("Equal", 13, 17))
sketch7.addConstraint(Sketcher.Constraint("Equal", 17, 21))
sketch7.addConstraint(Sketcher.Constraint("Equal", 21, 25))
sketch7.addConstraint(Sketcher.Constraint("Equal", 25, 29))
sketch7.addConstraint(Sketcher.Constraint("PointOnObject", 10, 2, -2))
sketch7.addConstraint(Sketcher.Constraint("PointOnObject", 22, 2, -2))
sketch7.addConstraint(Sketcher.Constraint("Parallel", 0, 2))
sketch7.addConstraint(Sketcher.Constraint("Parallel", 2, 5))
sketch7.addConstraint(Sketcher.Constraint("Parallel", 5, 7))
sketch7.addConstraint(Sketcher.Constraint("Perpendicular", 7, 8))
sketch7.addConstraint(Sketcher.Constraint("Parallel", 8, 10))
sketch7.addConstraint(Sketcher.Constraint("Parallel", 10, 12))
sketch7.addConstraint(Sketcher.Constraint("Parallel", 12, 14))
sketch7.addConstraint(Sketcher.Constraint("Perpendicular", 14, 16))
sketch7.addConstraint(Sketcher.Constraint("Parallel", 16, 18))
sketch7.addConstraint(Sketcher.Constraint("Parallel", 18, 20))
sketch7.addConstraint(Sketcher.Constraint("Parallel", 20, 22))
sketch7.addConstraint(Sketcher.Constraint("Perpendicular", 22, 24))
sketch7.addConstraint(Sketcher.Constraint("Parallel", 24, 26))
sketch7.addConstraint(Sketcher.Constraint("Parallel", 26, 28))
sketch7.addConstraint(Sketcher.Constraint("Parallel", 28, 30))
sketch7.addConstraint(Sketcher.Constraint("Horizontal", 6, 3, 9, 3))
sketch7.addConstraint(Sketcher.Constraint("Horizontal", 21, 3, 25, 3))
sketch7.addConstraint(Sketcher.Constraint("Horizontal", 6, 1, 8, 2))
sketch7.addConstraint(Sketcher.Constraint("Horizontal", 5, 2, 9, 1))
sketch7.addConstraint(Sketcher.Constraint("Horizontal", 4, 2, 10, 2))
sketch7.addConstraint(Sketcher.Constraint("Horizontal", 7, 2, 11, 2))
sketch7.addConstraint(Sketcher.Constraint("Horizontal", 3, 1, 12, 2))
sketch7.addConstraint(Sketcher.Constraint("Horizontal", 2, 2, 13, 1))
sketch7.addConstraint(Sketcher.Constraint("Horizontal", 1, 2, 14, 2))
sketch7.addConstraint(Sketcher.Constraint("Horizontal", 21, 1, 24, 2))
sketch7.addConstraint(Sketcher.Constraint("Horizontal", 20, 2, 25, 1))
sketch7.addConstraint(Sketcher.Constraint("Horizontal", 23, 2, 26, 2))
sketch7.addConstraint(Sketcher.Constraint("Horizontal", 17, 1, 28, 2))
sketch7.addConstraint(Sketcher.Constraint("Horizontal", 16, 2, 29, 1))
sketch7.addConstraint(Sketcher.Constraint("Horizontal", 19, 2, 30, 2))
sketch7.addConstraint(Sketcher.Constraint("Vertical", 13, 3, 17, 3))
sketch7.addConstraint(Sketcher.Constraint("Vertical", 6, 3, 25, 3))
sketch7.addConstraint(Sketcher.Constraint("Vertical", 13, 1, 16, 2))
sketch7.addConstraint(Sketcher.Constraint("Vertical", 12, 2, 17, 1))
sketch7.addConstraint(Sketcher.Constraint("Vertical", 15, 2, 18, 2))
sketch7.addConstraint(Sketcher.Constraint("Vertical", 9, 1, 20, 2))
sketch7.addConstraint(Sketcher.Constraint("Vertical", 8, 2, 21, 1))
sketch7.addConstraint(Sketcher.Constraint("Equal", 31, 4))
sketch7.addConstraint(Sketcher.Constraint("Equal", 0, 5))
sketch7.addConstraint(Sketcher.Constraint("Equal", 2, 7))
sketch7.addConstraint(Sketcher.Constraint("DistanceY", 3, 3, -1, 1, Q("1 in")))
sketch7.addConstraint(Sketcher.Constraint("DistanceY", -1, 1, 17, 3, Q("6 in")))
sketch7.addConstraint(Sketcher.Constraint("DistanceX", -1, 1, 4, 2, Q("8 in")))
sketch7.addConstraint(Sketcher.Constraint("Radius", 3, Q("0.125 in")))
sketch7.addConstraint(Sketcher.Constraint("DistanceX", 9, 3, 3, 3, Q("7 in")))
sketch7.addConstraint(Sketcher.Constraint("DistanceX", -1, 1, 0, 2, Q("6.8532 in")))
sketch7.addConstraint(Sketcher.Constraint("DistanceX", 1, 1, 1, 2, 4.490128))
pad2 = doc.addObject("PartDesign::Pad", "Pad001")
body.addObject(pad2)
pad2.Profile = sketch7
pad2.Length = Q("0.15 in")
doc.recompute()

chamfer = doc.addObject("PartDesign::Chamfer", "Chamfer")
body.addObject(chamfer)
chamfer.Base = (pad2, edges_at(pad2, [
    (183.615, -3.81, -33.047),
    (198.147, -3.81, -18.515),
    (5.053, -3.81, -18.515),
    (19.585, -3.81, -33.047),
    (19.585, -3.81, 160.047),
    (5.053, -3.81, 145.515),
    (198.147, -3.81, 145.515),
    (183.615, -3.81, 160.047),
]))
chamfer.Size = Q("0.1 in")

doc.recompute()
